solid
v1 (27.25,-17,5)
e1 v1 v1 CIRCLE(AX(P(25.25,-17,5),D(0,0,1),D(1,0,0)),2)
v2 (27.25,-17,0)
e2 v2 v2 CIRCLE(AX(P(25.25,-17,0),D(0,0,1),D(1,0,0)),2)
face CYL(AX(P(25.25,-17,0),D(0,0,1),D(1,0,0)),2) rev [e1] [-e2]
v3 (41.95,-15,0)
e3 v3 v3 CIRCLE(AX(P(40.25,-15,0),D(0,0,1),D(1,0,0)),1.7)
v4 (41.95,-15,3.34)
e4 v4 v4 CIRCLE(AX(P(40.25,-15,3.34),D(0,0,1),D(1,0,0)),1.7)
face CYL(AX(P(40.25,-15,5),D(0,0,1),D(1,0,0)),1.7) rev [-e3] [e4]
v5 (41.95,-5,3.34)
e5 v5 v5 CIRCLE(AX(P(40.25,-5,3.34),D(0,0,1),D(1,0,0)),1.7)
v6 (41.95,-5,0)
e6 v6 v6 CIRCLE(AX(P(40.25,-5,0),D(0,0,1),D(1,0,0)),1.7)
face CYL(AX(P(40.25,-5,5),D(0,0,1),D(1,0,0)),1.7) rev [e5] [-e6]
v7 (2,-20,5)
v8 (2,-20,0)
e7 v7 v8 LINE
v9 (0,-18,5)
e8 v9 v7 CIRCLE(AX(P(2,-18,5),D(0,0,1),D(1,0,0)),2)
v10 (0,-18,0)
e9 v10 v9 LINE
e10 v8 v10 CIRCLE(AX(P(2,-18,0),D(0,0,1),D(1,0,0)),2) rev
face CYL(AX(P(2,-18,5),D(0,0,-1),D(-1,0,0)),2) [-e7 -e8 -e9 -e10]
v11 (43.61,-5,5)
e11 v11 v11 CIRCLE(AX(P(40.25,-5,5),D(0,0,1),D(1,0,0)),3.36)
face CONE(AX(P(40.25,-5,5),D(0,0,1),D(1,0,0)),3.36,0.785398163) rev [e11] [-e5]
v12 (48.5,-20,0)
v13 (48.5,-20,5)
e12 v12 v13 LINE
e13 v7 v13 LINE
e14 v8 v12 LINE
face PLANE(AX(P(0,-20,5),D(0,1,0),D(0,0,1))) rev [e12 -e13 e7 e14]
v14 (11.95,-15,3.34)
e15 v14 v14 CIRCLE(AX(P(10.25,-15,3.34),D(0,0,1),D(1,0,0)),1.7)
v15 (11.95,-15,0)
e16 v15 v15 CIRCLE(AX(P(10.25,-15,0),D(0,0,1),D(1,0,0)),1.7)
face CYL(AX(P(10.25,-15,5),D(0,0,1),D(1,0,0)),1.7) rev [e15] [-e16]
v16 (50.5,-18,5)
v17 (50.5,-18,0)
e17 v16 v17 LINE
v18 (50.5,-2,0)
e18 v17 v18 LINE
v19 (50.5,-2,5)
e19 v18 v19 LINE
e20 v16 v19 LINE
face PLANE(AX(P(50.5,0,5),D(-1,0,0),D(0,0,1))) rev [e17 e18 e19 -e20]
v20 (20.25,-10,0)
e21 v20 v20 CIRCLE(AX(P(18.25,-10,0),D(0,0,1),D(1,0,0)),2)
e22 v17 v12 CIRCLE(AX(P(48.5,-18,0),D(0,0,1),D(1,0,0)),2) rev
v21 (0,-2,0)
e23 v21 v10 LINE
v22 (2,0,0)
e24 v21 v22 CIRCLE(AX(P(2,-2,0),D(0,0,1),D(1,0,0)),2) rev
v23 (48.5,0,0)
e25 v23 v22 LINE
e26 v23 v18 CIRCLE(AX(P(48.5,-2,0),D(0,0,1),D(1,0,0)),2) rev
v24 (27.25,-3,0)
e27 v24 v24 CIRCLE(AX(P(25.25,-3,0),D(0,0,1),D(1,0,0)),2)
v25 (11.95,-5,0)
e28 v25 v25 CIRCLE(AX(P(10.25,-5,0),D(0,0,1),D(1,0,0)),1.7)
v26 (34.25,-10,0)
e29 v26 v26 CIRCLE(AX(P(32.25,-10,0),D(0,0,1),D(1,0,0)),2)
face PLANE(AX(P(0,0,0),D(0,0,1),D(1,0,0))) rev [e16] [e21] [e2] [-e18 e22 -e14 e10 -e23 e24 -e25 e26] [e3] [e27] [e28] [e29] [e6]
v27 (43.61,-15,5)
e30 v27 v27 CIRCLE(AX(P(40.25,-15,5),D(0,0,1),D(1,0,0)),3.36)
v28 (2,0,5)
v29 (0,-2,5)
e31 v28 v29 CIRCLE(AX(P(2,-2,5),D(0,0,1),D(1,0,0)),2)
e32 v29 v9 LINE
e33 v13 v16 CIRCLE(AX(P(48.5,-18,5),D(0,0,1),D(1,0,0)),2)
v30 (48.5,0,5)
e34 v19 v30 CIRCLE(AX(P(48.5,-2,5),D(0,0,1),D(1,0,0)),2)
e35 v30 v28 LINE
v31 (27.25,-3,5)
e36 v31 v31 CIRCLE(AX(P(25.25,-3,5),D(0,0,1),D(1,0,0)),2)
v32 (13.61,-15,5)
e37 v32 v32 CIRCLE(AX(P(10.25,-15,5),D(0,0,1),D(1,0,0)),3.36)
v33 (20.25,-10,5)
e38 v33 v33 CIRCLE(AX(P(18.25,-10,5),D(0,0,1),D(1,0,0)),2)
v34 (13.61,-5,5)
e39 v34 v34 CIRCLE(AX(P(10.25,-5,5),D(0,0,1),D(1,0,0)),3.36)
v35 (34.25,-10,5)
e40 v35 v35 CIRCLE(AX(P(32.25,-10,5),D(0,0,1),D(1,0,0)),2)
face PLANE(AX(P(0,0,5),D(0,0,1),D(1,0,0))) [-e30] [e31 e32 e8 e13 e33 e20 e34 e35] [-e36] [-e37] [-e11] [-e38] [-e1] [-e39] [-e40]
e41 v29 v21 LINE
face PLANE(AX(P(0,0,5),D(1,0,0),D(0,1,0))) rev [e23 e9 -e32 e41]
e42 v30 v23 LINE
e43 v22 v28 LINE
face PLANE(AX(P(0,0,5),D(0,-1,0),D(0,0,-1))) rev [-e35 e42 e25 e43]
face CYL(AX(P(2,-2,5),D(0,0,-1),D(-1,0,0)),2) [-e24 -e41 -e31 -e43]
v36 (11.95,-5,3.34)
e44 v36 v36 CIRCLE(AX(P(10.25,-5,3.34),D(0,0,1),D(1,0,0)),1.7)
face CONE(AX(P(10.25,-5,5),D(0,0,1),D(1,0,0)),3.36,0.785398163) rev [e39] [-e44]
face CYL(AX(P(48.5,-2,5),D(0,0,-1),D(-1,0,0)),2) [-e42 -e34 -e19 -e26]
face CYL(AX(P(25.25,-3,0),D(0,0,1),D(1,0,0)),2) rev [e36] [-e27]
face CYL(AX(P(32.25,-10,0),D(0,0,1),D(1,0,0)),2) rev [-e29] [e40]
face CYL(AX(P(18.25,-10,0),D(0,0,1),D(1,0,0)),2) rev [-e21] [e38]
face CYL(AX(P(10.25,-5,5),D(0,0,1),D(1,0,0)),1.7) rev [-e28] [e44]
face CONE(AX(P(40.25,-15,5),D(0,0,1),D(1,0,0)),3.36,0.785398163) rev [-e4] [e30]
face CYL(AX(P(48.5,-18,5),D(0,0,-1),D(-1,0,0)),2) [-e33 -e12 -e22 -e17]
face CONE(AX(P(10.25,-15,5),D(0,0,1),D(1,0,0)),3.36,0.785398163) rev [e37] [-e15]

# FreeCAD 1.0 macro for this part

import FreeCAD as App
import Part
import Sketcher
from FreeCAD import Vector
Q = App.Units.Quantity


def edges_at(feature, points):
    """Names of the edges that pass closest to the given points."""
    edges = feature.Shape.Edges
    near = lambda p: min(range(len(edges)), key=lambda i: edges[i].distToShape(Part.Vertex(*p))[0])
    return sorted({f"Edge{near(p) + 1}" for p in points})


def add_polygon(sketch, points):
    """Adds a closed chain of lines whose ends are joined by coincident constraints."""
    first, n = sketch.GeometryCount, len(points)
    for a, b in zip(points, points[1:] + points[:1]):
        sketch.addGeometry(Part.LineSegment(App.Vector(*a, 0), App.Vector(*b, 0)), False)
    for i in range(n):
        sketch.addConstraint(Sketcher.Constraint("Coincident", first + i, 2, first + (i + 1) % n, 1))

doc = App.newDocument("Part")
params = doc.addObject("Spreadsheet::Sheet", "Params")
for row, (alias, value) in enumerate([
    ("sketch1_height", "20 mm"),
    ("sketch1_width", "50.5 mm"),
    ("pad1_length", "5 mm"),
    ("sketch2_diameter", "3.2 mm"),
    ("pocket1_length", "5 mm"),
    ("sketch3_diameter", "3.4 mm"),
    ("hole_diameter", "3.4 mm"),
    ("hole_csink_diameter", "6.72 mm"),
    ("sketch4_diameter", "4 mm"),
    ("pocket2_length", "5 mm"),
    ("fillet_radius", "2 mm"),
], start=1):
    params.set(f"A{row}", alias)
    params.set(f"B{row}", "=" + value)
    params.setAlias(f"B{row}", alias)

body = doc.addObject("PartDesign::Body", "Body")

sketch1 = body.newObject("Sketcher::SketchObject", "Sketch")
sketch1.AttachmentSupport = (doc.getObject("XY_Plane"), [""])
sketch1.MapMode = "FlatFace"
add_polygon(sketch1, [(0, 0), (0, -20), (50, -20), (50, 0)])
sketch1.addConstraint(Sketcher.Constraint("Vertical", 0))
sketch1.addConstraint(Sketcher.Constraint("Horizontal", 1))
sketch1.addConstraint(Sketcher.Constraint("Vertical", 2))
sketch1.addConstraint(Sketcher.Constraint("Horizontal", 3))
sketch1.addConstraint(Sketcher.Constraint("Coincident", 3, 2, -1, 1))
sketch1.addConstraint(Sketcher.Constraint("DistanceY", 0, 2, 0, 1, Q("20 mm")))
sketch1.addConstraint(Sketcher.Constraint("DistanceX", 1, 1, 1, 2, Q("50.5 mm")))
sketch1.setExpression("Constraints[9]", "Params.sketch1_height")
sketch1.setExpression("Constraints[10]", "Params.sketch1_width")
pad1 = body.newObject("PartDesign::Pad", "Pad")
pad1.Profile = sketch1
pad1.setExpression("Length", "Params.pad1_length")

sketch2 = body.newObject("Sketcher::SketchObject", "Sketch001")
sketch2.AttachmentSupport = (doc.getObject("XY_Plane"), [""])
sketch2.MapMode = "FlatFace"
sketch2.addGeometry(Part.Circle(Vector(40.2, -5, 0), Vector(0, 0, 1), 1.6), False)
sketch2.addGeometry(Part.Circle(Vector(40.2, -15, 0), Vector(0, 0, 1), 1.6), False)
sketch2.addGeometry(Part.Circle(Vector(10.2, -5, 0), Vector(0, 0, 1), 1.6), False)
sketch2.addGeometry(Part.Circle(Vector(10.2, -15, 0), Vector(0, 0, 1), 1.6), False)
sketch2.addConstraint(Sketcher.Constraint("Equal", 0, 1))
sketch2.addConstraint(Sketcher.Constraint("Equal", 1, 2))
sketch2.addConstraint(Sketcher.Constraint("Equal", 2, 3))
sketch2.addConstraint(Sketcher.Constraint("Horizontal", 0, 3, 2, 3))
sketch2.addConstraint(Sketcher.Constraint("Horizontal", 1, 3, 3, 3))
sketch2.addConstraint(Sketcher.Constraint("Vertical", 0, 3, 1, 3))
sketch2.addConstraint(Sketcher.Constraint("Vertical", 2, 3, 3, 3))
sketch2.addConstraint(Sketcher.Constraint("Diameter", 0, Q("3.2 mm")))
sketch2.addConstraint(Sketcher.Constraint("DistanceY", 0, 3, -1, 1, Q("5 mm")))
sketch2.addConstraint(Sketcher.Constraint("DistanceY", 1, 3, -1, 1, Q("15 mm")))
sketch2.addConstraint(Sketcher.Constraint("DistanceX", 2, 3, 0, 3, Q("30 mm")))
sketch2.addConstraint(Sketcher.Constraint("DistanceX", -1, 1, 0, 3, Q("40.25 mm")))
sketch2.setExpression("Constraints[7]", "Params.sketch2_diameter")
pocket1 = body.newObject("PartDesign::Pocket", "Pocket")
pocket1.Profile = sketch2
pocket1.setExpression("Length", "Params.pocket1_length")
pocket1.Reversed = True

sketch3 = body.newObject("Sketcher::SketchObject", "Sketch002")
sketch3.AttachmentSupport = (doc.getObject("XY_Plane"), [""])
sketch3.MapMode = "FlatFace"
sketch3.AttachmentOffset = App.Placement(Vector(0, 0, 5), App.Rotation())
sketch3.addGeometry(Part.Circle(Vector(10.2, -5, 0), Vector(0, 0, 1), 1.7), False)
sketch3.addGeometry(Part.Circle(Vector(10.2, -15, 0), Vector(0, 0, 1), 1.7), False)
sketch3.addGeometry(Part.Circle(Vector(40.2, -5, 0), Vector(0, 0, 1), 1.7), False)
sketch3.addGeometry(Part.Circle(Vector(40.2, -15, 0), Vector(0, 0, 1), 1.7), False)
sketch3.addConstraint(Sketcher.Constraint("Equal", 0, 1))
sketch3.addConstraint(Sketcher.Constraint("Equal", 1, 2))
sketch3.addConstraint(Sketcher.Constraint("Equal", 2, 3))
sketch3.addConstraint(Sketcher.Constraint("Horizontal", 0, 3, 2, 3))
sketch3.addConstraint(Sketcher.Constraint("Horizontal", 1, 3, 3, 3))
sketch3.addConstraint(Sketcher.Constraint("Vertical", 0, 3, 1, 3))
sketch3.addConstraint(Sketcher.Constraint("Vertical", 2, 3, 3, 3))
sketch3.addConstraint(Sketcher.Constraint("Diameter", 0, Q("3.4 mm")))
sketch3.addConstraint(Sketcher.Constraint("DistanceY", 0, 3, -1, 1, Q("5 mm")))
sketch3.addConstraint(Sketcher.Constraint("DistanceY", 1, 3, -1, 1, Q("15 mm")))
sketch3.addConstraint(Sketcher.Constraint("DistanceX", 0, 3, 2, 3, Q("30 mm")))
sketch3.addConstraint(Sketcher.Constraint("DistanceX", -1, 1, 0, 3, Q("10.25 mm")))
sketch3.setExpression("Constraints[7]", "Params.sketch3_diameter")
doc.recompute()
hole = body.newObject("PartDesign::Hole", "Hole")
hole.Profile = sketch3
hole.ThreadType = "None"
hole.setExpression("Diameter", "Params.hole_diameter")
hole.DepthType = "ThroughAll"
hole.HoleCutType = "Countersink"
hole.setExpression("HoleCutDiameter", "Params.hole_csink_diameter")
hole.HoleCutCountersinkAngle = 90

sketch4 = body.newObject("Sketcher::SketchObject", "Sketch003")
sketch4.AttachmentSupport = (doc.getObject("XY_Plane"), [""])
sketch4.MapMode = "FlatFace"
sketch4.AttachmentOffset = App.Placement(Vector(0, 0, 5), App.Rotation())
sketch4.addGeometry(Part.Circle(Vector(25.2, -3, 0), Vector(0, 0, 1), 2), False)
sketch4.addGeometry(Part.Circle(Vector(32.2, -10, 0), Vector(0, 0, 1), 2), False)
sketch4.addGeometry(Part.Circle(Vector(18.2, -10, 0), Vector(0, 0, 1), 2), False)
sketch4.addGeometry(Part.Circle(Vector(25.2, -17, 0), Vector(0, 0, 1), 2), False)
sketch4.addConstraint(Sketcher.Constraint("Equal", 0, 1))
sketch4.addConstraint(Sketcher.Constraint("Equal", 1, 2))
sketch4.addConstraint(Sketcher.Constraint("Equal", 2, 3))
sketch4.addConstraint(Sketcher.Constraint("Horizontal", 1, 3, 2, 3))
sketch4.addConstraint(Sketcher.Constraint("Vertical", 0, 3, 3, 3))
sketch4.addConstraint(Sketcher.Constraint("Diameter", 0, Q("4 mm")))
sketch4.addConstraint(Sketcher.Constraint("DistanceY", 0, 3, -1, 1, Q("3 mm")))
sketch4.addConstraint(Sketcher.Constraint("DistanceY", 1, 3, -1, 1, Q("10 mm")))
sketch4.addConstraint(Sketcher.Constraint("DistanceY", 3, 3, -1, 1, Q("17 mm")))
sketch4.addConstraint(Sketcher.Constraint("DistanceX", 0, 3, 1, 3, Q("7 mm")))
sketch4.addConstraint(Sketcher.Constraint("DistanceX", 2, 3, 0, 3, Q("7 mm")))
sketch4.addConstraint(Sketcher.Constraint("DistanceX", -1, 1, 0, 3, Q("25.25 mm")))
sketch4.setExpression("Constraints[5]", "Params.sketch4_diameter")
pocket2 = body.newObject("PartDesign::Pocket", "Pocket001")
pocket2.Profile = sketch4
pocket2.setExpression("Length", "Params.pocket2_length")
doc.recompute()

fillet = body.newObject("PartDesign::Fillet", "Fillet")
fillet.Base = (pocket2, edges_at(pocket2, [
    (0, 0, 2.5),
    (50.5, 0, 2.5),
    (50.5, -20, 2.5),
    (0, -20, 2.5),
]))
fillet.setExpression("Radius", "Params.fillet_radius")

doc.recompute()
